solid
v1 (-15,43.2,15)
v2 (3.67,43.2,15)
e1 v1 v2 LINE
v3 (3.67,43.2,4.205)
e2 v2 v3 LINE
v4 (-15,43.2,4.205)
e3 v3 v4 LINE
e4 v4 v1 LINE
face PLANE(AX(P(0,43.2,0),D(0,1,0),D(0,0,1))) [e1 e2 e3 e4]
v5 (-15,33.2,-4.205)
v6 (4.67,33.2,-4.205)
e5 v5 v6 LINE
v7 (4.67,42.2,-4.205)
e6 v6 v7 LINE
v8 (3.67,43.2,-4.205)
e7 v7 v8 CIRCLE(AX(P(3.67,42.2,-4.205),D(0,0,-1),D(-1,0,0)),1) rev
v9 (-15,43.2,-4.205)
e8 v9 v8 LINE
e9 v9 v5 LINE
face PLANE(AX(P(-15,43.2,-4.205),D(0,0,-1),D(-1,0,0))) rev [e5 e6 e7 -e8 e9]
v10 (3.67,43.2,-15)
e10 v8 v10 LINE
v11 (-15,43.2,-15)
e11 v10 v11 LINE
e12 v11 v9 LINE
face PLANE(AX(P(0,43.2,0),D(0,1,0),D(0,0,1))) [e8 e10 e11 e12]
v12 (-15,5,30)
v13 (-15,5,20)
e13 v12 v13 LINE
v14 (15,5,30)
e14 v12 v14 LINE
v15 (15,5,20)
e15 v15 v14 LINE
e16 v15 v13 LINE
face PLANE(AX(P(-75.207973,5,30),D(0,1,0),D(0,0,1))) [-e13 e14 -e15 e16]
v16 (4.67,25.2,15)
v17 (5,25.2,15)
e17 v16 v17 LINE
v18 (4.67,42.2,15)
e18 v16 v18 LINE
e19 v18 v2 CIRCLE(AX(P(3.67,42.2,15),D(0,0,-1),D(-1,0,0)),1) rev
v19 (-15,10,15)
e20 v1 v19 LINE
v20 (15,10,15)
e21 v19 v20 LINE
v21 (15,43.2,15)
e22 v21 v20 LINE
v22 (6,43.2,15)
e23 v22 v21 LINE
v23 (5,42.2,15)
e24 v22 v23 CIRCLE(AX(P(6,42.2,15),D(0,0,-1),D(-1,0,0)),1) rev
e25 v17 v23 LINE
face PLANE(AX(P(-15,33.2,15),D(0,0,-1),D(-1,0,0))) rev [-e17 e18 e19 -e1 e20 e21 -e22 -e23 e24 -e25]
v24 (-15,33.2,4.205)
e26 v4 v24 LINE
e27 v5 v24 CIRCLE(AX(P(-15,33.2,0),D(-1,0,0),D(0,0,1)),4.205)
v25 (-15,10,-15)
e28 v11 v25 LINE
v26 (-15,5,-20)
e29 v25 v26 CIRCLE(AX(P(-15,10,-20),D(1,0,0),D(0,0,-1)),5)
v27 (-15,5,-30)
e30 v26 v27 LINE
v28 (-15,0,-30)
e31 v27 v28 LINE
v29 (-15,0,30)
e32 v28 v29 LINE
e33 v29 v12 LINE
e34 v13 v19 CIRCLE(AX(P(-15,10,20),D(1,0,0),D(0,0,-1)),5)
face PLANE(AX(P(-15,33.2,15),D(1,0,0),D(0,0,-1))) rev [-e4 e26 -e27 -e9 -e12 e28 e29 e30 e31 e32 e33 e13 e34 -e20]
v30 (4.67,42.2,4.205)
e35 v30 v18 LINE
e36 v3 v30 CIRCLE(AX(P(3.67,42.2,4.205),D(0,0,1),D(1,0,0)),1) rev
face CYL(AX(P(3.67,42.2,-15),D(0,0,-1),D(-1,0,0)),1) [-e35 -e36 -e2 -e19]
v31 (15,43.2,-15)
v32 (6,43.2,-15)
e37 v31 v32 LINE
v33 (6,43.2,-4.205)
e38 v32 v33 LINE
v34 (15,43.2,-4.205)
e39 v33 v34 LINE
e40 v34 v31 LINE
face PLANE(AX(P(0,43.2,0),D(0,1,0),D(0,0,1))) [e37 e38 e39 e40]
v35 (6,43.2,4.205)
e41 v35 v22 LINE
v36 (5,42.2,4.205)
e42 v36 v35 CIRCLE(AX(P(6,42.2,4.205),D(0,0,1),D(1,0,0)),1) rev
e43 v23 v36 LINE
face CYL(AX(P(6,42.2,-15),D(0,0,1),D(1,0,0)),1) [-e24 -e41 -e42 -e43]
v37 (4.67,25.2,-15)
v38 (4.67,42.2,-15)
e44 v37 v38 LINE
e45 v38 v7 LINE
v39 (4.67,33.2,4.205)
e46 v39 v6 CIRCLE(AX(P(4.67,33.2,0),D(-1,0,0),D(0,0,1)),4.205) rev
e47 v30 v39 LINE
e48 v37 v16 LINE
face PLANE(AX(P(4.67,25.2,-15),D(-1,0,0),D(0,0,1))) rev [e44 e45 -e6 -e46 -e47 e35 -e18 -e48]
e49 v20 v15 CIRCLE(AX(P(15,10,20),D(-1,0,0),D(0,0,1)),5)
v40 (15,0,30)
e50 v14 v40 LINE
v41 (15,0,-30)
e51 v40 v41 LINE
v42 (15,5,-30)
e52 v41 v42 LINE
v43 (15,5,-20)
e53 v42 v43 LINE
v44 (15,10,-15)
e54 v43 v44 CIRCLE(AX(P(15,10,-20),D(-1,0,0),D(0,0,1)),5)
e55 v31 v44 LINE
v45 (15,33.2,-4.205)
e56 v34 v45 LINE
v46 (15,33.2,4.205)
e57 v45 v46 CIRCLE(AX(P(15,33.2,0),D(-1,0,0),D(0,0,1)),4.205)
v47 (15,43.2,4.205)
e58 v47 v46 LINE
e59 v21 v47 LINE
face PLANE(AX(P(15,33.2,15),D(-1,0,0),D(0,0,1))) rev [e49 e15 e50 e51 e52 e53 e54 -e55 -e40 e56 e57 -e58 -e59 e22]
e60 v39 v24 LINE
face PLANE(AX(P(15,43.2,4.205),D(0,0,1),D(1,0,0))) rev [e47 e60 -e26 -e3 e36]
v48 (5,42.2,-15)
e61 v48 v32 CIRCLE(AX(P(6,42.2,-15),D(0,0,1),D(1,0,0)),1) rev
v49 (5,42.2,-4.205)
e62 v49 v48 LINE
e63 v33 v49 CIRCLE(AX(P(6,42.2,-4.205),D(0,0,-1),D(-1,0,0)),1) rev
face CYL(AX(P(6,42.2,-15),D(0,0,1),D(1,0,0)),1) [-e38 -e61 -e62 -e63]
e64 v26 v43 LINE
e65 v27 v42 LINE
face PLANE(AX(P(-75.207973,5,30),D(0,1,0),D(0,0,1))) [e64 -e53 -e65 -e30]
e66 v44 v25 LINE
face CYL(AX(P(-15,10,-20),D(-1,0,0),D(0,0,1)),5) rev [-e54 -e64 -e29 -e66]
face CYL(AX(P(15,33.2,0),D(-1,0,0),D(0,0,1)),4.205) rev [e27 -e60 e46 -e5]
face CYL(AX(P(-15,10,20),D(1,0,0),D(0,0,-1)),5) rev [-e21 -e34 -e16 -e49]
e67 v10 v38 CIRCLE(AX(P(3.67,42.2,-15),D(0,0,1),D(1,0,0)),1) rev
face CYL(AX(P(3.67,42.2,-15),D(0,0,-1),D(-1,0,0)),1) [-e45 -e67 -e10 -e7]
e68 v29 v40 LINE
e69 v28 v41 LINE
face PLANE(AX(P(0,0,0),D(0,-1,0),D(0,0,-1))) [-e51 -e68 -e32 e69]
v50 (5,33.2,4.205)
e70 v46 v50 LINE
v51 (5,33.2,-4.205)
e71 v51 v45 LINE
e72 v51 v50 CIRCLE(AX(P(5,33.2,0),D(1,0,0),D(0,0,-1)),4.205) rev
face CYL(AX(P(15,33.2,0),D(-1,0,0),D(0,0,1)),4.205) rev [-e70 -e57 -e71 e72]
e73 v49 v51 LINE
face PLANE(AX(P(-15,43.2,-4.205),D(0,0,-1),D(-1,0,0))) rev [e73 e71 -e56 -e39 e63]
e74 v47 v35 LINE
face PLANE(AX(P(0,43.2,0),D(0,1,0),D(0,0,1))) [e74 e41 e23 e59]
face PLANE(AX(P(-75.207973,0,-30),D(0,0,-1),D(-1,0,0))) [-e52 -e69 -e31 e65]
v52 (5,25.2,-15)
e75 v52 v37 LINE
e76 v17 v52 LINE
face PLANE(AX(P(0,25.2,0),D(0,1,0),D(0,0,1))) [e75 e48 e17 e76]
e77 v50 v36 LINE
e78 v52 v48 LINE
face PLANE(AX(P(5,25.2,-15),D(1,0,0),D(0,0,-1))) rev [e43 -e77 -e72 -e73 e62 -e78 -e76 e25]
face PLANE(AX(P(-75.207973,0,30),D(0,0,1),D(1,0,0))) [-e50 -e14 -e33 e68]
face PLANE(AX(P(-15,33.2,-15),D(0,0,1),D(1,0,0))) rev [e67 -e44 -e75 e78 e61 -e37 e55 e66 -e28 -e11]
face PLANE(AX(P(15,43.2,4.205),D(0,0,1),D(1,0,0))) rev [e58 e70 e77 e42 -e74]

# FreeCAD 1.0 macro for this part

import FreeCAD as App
import Part
import Sketcher


def edges_at(feature, points):
    """Names of the edges that pass closest to the given points."""
    edges = feature.Shape.Edges
    near = lambda p: min(range(len(edges)), key=lambda i: edges[i].distToShape(Part.Vertex(*p))[0])
    return sorted({f"Edge{near(p) + 1}" for p in points})


def add_polygon(sketch, points):
    """Adds a closed chain of lines whose ends are joined by coincident constraints."""
    first, n = sketch.GeometryCount, len(points)
    for a, b in zip(points, points[1:] + points[:1]):
        sketch.addGeometry(Part.LineSegment(App.Vector(*a, 0), App.Vector(*b, 0)), False)
    for i in range(n):
        sketch.addConstraint(Sketcher.Constraint("Coincident", first + i, 2, first + (i + 1) % n, 1))

doc = App.newDocument("Part")
body = doc.addObject("PartDesign::Body", "Body")

# Sketch on XZ plane
sketch1 = body.newObject("Sketcher::SketchObject", "Sketch")
sketch1.AttachmentSupport = (doc.getObject("XZ_Plane"), [""])
sketch1.MapMode = "FlatFace"
add_polygon(sketch1, [(-15, -15), (-15, 15), (15, 15), (15, -15)])  # lines 0-3
sketch1.addConstraint([
    Sketcher.Constraint("Vertical", 0),
    Sketcher.Constraint("Horizontal", 1),
    Sketcher.Constraint("Vertical", 2),
    Sketcher.Constraint("Horizontal", 3),
    Sketcher.Constraint("Symmetric", 0, 2, 2, 2, -1, 1),
    Sketcher.Constraint("Equal", 3, 0),
    Sketcher.Constraint("DistanceX", 1, 1, 1, 2, 30.0),
])
pad1 = body.newObject("PartDesign::Pad", "Pad")
pad1.Profile = sketch1
pad1.Length = 33.2
pad1.Reversed = True

# Sketch on YZ plane
sketch2 = body.newObject("Sketcher::SketchObject", "Sketch001")
sketch2.AttachmentSupport = (doc.getObject("YZ_Plane"), [""])
sketch2.MapMode = "FlatFace"
sketch2.AttachmentOffset = App.Placement(App.Vector(0, 0, -15), App.Rotation())
sketch2.addGeometry(Part.Circle(App.Vector(33.2, 0, 0), App.Vector(0, 0, 1), 4.2), False)
sketch2.addConstraint([
    Sketcher.Constraint("PointOnObject", 0, 3, -1),
    Sketcher.Constraint("Diameter", 0, 8.41),
    Sketcher.Constraint("DistanceX", -1, 1, 0, 3, 33.2),
])
pocket1 = body.newObject("PartDesign::Pocket", "Pocket")
pocket1.Profile = sketch2
pocket1.Type = "ThroughAll"
pocket1.Reversed = True

# Sketch on YZ plane
sketch3 = body.newObject("Sketcher::SketchObject", "Sketch002")
sketch3.AttachmentSupport = (doc.getObject("YZ_Plane"), [""])
sketch3.MapMode = "FlatFace"
sketch3.AttachmentOffset = App.Placement(App.Vector(0, 0, 15), App.Rotation())
add_polygon(sketch3, [(5, 30), (0, 30), (0, -30), (5, -30)])  # lines 0-3
sketch3.addConstraint([
    Sketcher.Constraint("Horizontal", 0),
    Sketcher.Constraint("Vertical", 1),
    Sketcher.Constraint("Horizontal", 2),
    Sketcher.Constraint("Vertical", 3),
    Sketcher.Constraint("Symmetric", 0, 2, 1, 2, -1, 1),
    Sketcher.Constraint("DistanceX", 0, 2, 0, 1, 5.0),
    Sketcher.Constraint("DistanceY", 1, 2, 1, 1, 60.0),
])
pad2 = body.newObject("PartDesign::Pad", "Pad001")
pad2.Profile = sketch3
pad2.Length = 30
pad2.Reversed = True
doc.recompute()

fillet = body.newObject("PartDesign::Fillet", "Fillet")
fillet.Base = (pad2, edges_at(pad2, [(0, 5, -15), (0, 5, 15)]))
fillet.Radius = 5

# Sketch on XZ plane
sketch4 = body.newObject("Sketcher::SketchObject", "Sketch003")
sketch4.AttachmentSupport = (doc.getObject("XZ_Plane"), [""])
sketch4.MapMode = "FlatFace"
sketch4.AttachmentOffset = App.Placement(App.Vector(0, 0, -33.2), App.Rotation())
add_polygon(sketch4, [(-15, -15), (-15, -4), (15, -4), (15, -15)])  # lines 0-3
add_polygon(sketch4, [(-15, 4), (-15, 15), (15, 15), (15, 4)])  # lines 4-7
sketch4.addConstraint([
    Sketcher.Constraint("Vertical", 0),
    Sketcher.Constraint("Horizontal", 1),
    Sketcher.Constraint("Vertical", 2),
    Sketcher.Constraint("Horizontal", 3),
    Sketcher.Constraint("Vertical", 4),
    Sketcher.Constraint("Horizontal", 5),
    Sketcher.Constraint("Vertical", 6),
    Sketcher.Constraint("Horizontal", 7),
    Sketcher.Constraint("Symmetric", 2, 2, 4, 2, -1, 1),
    Sketcher.Constraint("Symmetric", 0, 2, 6, 2, -1, 1),
    Sketcher.Constraint("Vertical", 3, 2, 4, 2),
    Sketcher.Constraint("DistanceX", 1, 1, 1, 2, 30.0),
    Sketcher.Constraint("DistanceY", 2, 2, -1, 1, 15.0),
    Sketcher.Constraint("DistanceY", 0, 1, 0, 2, 10.795),
])
pad3 = body.newObject("PartDesign::Pad", "Pad002")
pad3.Profile = sketch4
pad3.Length = 10
pad3.Reversed = True

# Sketch on XZ plane
sketch5 = body.newObject("Sketcher::SketchObject", "Sketch004")
sketch5.AttachmentSupport = (doc.getObject("XZ_Plane"), [""])
sketch5.MapMode = "FlatFace"
sketch5.AttachmentOffset = App.Placement(App.Vector(0, 0, -43.2), App.Rotation())
add_polygon(sketch5, [(4.67, -15), (4.67, 15), (5, 15), (5, -15)])  # lines 0-3
sketch5.addConstraint([
    Sketcher.Constraint("Vertical", 0),
    Sketcher.Constraint("Horizontal", 1),
    Sketcher.Constraint("Vertical", 2),
    Sketcher.Constraint("Horizontal", 3),
    Sketcher.Constraint("DistanceY", 0, 1, 0, 2, 30.0),
    Sketcher.Constraint("DistanceY", -1, 1, 0, 2, 15.0),
    Sketcher.Constraint("DistanceX", -1, 1, 1, 2, 5.0),
    Sketcher.Constraint("DistanceX", 1, 1, 1, 2, 0.33),
])
pocket2 = body.newObject("PartDesign::Pocket", "Pocket001")
pocket2.Profile = sketch5
pocket2.Length = 18
pocket2.Reversed = True
doc.recompute()

fillet2 = body.newObject("PartDesign::Fillet", "Fillet001")
fillet2.Base = (pocket2, edges_at(pocket2, [
    (5, 43.2, -9.602),
    (5, 43.2, 9.602),
    (4.67, 43.2, 9.602),
    (4.67, 43.2, -9.602),
]))
fillet2.Radius = 1

doc.recompute()
